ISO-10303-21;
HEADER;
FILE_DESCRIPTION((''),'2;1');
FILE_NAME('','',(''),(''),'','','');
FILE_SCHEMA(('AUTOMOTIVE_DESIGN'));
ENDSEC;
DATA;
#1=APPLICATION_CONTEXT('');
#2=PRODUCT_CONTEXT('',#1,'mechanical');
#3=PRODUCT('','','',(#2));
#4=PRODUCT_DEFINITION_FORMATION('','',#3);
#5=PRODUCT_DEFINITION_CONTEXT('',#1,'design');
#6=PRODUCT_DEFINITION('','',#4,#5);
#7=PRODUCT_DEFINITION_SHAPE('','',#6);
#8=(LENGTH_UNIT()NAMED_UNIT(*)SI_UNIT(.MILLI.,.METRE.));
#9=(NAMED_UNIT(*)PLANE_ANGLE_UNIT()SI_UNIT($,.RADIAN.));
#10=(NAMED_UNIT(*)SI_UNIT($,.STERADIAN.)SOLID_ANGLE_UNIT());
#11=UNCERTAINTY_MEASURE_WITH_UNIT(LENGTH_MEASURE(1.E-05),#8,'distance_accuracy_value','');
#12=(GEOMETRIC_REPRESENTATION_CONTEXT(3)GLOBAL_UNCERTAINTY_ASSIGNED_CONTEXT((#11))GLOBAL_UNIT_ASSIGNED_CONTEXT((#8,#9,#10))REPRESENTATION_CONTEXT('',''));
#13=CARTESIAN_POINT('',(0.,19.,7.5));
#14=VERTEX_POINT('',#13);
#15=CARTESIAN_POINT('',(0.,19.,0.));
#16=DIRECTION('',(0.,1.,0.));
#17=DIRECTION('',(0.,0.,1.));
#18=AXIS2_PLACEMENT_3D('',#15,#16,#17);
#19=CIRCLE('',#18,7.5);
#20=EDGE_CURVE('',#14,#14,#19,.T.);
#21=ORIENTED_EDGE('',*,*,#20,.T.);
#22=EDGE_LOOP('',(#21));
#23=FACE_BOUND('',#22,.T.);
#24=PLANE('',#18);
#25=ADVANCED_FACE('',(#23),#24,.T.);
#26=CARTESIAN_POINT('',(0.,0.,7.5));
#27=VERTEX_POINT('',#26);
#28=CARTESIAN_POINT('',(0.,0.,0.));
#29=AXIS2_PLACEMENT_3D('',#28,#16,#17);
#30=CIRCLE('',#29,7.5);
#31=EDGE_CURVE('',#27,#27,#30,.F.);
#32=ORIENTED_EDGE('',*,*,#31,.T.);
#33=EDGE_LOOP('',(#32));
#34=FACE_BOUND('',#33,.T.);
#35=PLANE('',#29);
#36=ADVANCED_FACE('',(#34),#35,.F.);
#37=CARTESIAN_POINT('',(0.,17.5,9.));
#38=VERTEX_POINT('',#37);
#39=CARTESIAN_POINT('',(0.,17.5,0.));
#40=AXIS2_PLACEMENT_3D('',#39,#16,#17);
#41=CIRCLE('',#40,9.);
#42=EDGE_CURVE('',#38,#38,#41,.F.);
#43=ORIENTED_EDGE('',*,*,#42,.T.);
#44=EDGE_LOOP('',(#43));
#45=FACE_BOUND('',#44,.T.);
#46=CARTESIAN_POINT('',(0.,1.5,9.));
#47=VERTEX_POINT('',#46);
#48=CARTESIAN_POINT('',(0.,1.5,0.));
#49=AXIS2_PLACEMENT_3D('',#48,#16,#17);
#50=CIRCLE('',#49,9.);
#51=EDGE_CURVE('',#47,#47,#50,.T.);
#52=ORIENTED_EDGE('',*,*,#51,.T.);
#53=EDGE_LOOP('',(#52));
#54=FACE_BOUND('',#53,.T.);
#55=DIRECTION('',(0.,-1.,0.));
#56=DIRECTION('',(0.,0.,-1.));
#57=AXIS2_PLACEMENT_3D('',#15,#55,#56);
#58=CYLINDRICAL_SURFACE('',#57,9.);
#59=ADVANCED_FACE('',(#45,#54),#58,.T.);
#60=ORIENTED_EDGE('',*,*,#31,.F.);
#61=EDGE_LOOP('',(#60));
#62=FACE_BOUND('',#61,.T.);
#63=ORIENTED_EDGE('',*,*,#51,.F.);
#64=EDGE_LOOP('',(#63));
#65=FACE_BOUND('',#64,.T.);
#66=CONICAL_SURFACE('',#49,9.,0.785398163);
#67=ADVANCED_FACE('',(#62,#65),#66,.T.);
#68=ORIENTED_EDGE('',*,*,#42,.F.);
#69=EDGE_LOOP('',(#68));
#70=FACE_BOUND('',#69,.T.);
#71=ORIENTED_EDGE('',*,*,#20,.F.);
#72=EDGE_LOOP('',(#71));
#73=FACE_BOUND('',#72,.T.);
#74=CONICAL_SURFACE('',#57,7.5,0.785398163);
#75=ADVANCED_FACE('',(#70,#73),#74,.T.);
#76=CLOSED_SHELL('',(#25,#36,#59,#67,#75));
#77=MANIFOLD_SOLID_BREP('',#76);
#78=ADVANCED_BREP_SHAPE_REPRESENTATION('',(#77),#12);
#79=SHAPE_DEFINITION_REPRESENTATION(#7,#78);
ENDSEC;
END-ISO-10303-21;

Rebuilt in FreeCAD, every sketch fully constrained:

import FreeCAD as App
import Part
import Sketcher

V = App.Vector


def edges_at(feature, points):
    """Names of the edges that pass closest to the given points."""
    edges = feature.Shape.Edges
    near = lambda p: min(range(len(edges)), key=lambda i: edges[i].distToShape(Part.Vertex(*p))[0])
    return sorted({f"Edge{near(p) + 1}" for p in points})

doc = App.newDocument("Part")
body = doc.addObject("PartDesign::Body", "Body")

sketch1 = body.newObject("Sketcher::SketchObject", "Sketch")
sketch1.AttachmentSupport = (doc.getObject("XZ_Plane"), [""])
sketch1.MapMode = "FlatFace"
sketch1.addGeometry(Part.Circle(V(0, 0, 0), V(0, 0, 1), 9), False)
sketch1.addConstraint(Sketcher.Constraint("Coincident", 0, 3, -1, 1))
sketch1.addConstraint(Sketcher.Constraint("Diameter", 0, 18.0))
pad1 = body.newObject("PartDesign::Pad", "Pad")
pad1.Profile = sketch1
pad1.Length = 19
pad1.Reversed = True
doc.recompute()

chamfer = body.newObject("PartDesign::Chamfer", "Chamfer")
chamfer.Base = (pad1, edges_at(pad1, [(0, 0, -9), (0, 19, -9)]))
chamfer.Size = 1.5

doc.recompute()
